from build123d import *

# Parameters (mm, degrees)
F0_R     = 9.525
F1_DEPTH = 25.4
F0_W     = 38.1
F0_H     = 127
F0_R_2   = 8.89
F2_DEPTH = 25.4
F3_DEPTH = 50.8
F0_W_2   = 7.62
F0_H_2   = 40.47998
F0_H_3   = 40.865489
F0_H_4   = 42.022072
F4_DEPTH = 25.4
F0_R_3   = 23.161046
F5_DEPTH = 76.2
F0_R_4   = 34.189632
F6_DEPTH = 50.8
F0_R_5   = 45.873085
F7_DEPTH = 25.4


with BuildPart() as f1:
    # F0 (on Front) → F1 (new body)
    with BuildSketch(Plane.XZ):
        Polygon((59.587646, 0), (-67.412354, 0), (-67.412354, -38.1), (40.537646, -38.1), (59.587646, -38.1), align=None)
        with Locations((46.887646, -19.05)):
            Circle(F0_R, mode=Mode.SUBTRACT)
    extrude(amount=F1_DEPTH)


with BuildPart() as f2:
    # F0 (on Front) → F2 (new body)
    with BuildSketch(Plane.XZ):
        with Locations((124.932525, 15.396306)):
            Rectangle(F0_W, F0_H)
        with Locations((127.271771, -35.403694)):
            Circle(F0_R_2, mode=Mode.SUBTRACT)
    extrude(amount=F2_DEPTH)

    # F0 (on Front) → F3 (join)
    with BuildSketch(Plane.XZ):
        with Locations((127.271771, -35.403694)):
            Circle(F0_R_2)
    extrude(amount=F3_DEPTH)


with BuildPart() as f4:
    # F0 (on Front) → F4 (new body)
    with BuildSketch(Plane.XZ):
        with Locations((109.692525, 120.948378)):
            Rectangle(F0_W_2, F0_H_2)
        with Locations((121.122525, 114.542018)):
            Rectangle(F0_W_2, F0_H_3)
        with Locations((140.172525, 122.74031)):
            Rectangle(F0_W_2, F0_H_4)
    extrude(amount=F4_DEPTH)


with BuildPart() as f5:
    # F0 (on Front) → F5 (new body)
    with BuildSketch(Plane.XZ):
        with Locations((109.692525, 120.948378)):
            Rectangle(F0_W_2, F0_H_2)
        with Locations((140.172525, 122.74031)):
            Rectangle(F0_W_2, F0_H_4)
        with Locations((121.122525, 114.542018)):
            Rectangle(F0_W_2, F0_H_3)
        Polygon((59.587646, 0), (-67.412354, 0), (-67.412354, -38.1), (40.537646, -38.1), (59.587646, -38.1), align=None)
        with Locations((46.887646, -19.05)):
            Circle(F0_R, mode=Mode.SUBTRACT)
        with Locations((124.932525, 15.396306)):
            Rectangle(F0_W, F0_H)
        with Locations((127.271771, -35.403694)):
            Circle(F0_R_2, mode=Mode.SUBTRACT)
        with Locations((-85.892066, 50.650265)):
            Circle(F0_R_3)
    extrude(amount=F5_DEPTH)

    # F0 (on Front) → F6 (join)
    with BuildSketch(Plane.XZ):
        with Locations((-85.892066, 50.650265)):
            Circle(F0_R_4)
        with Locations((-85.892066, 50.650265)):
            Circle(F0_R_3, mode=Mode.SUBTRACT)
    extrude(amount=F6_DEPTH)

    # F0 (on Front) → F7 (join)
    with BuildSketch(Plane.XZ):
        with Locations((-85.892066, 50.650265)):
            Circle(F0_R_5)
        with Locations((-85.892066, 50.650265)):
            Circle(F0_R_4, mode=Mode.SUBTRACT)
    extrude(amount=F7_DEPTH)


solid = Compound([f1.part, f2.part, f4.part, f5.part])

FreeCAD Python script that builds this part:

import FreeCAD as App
import Part
import Sketcher

V = App.Vector
Q = App.Units.Quantity

doc = App.newDocument("Part")
params = doc.addObject("Spreadsheet::Sheet", "Params")
for row, (alias, value) in enumerate([
    ("sketch1_diameter", "0.75 in"),
    ("sketch1_width", "5 in"),
    ("sketch1_height", "1.5 in"),
    ("pad1_length", "1 in"),
    ("sketch2_diameter", "0.7 in"),
    ("sketch2_height", "5 in"),
    ("sketch2_width", "1.5 in"),
    ("pad2_length", "1 in"),
    ("sketch3_diameter", "0.7 in"),
    ("pad3_length", "2 in"),
    ("sketch4_width", "0.3 in"),
    ("pad4_length", "1 in"),
    ("sketch5_diameter", "0.7 in"),
    ("sketch5_diameter2", "0.75 in"),
    ("sketch5_width", "5 in"),
    ("sketch5_width2", "0.3 in"),
    ("sketch5_width3", "1.5 in"),
    ("pad5_length", "3 in"),
    ("pad6_length", "2 in"),
    ("pad7_length", "1 in"),
], start=1):
    params.set(f"A{row}", alias)
    params.set(f"B{row}", "=" + value)
    params.setAlias(f"B{row}", alias)

body = doc.addObject("PartDesign::Body", "Body")

sketch1 = doc.addObject("Sketcher::SketchObject", "Sketch")
body.addObject(sketch1)
sketch1.AttachmentSupport = (doc.XZ_Plane, [""])
sketch1.MapMode = "FlatFace"
sketch1.addGeometry([
    Part.LineSegment(V(60, 0, 0), V(-67, 0, 0)),
    Part.LineSegment(V(-67, 0, 0), V(-67, -38, 0)),
    Part.LineSegment(V(-67, -38, 0), V(60, -38, 0)),
    Part.LineSegment(V(60, -38, 0), V(60, 0, 0)),
    Part.Circle(V(47, -19, 0), V(0, 0, 1), 10),
], False)
sketch1.addConstraint([
    Sketcher.Constraint("Coincident", 0, 2, 1, 1),
    Sketcher.Constraint("Coincident", 1, 2, 2, 1),
    Sketcher.Constraint("Coincident", 2, 2, 3, 1),
    Sketcher.Constraint("Coincident", 3, 2, 0, 1),
    Sketcher.Constraint("Horizontal", 0),
    Sketcher.Constraint("Vertical", 1),
    Sketcher.Constraint("Horizontal", 2),
    Sketcher.Constraint("Vertical", 3),
    Sketcher.Constraint("PointOnObject", 0, 2, -1),
    Sketcher.Constraint("Diameter", 4, Q("0.75 in")),
    Sketcher.Constraint("DistanceX", 0, 2, 0, 1, Q("5 in")),
    Sketcher.Constraint("DistanceY", 1, 2, 1, 1, Q("1.5 in")),
    Sketcher.Constraint("DistanceX", 0, 2, 4, 3, Q("4.5 in")),
    Sketcher.Constraint("DistanceY", 4, 3, -1, 1, Q("0.75 in")),
    Sketcher.Constraint("DistanceX", -1, 1, 4, 3, Q("46.887646 mm")),
])
sketch1.setExpression("Constraints[9]", "Params.sketch1_diameter")
sketch1.setExpression("Constraints[10]", "Params.sketch1_width")
sketch1.setExpression("Constraints[11]", "Params.sketch1_height")
pad1 = doc.addObject("PartDesign::Pad", "Pad")
body.addObject(pad1)
pad1.Profile = sketch1
pad1.setExpression("Length", "Params.pad1_length")
body2 = doc.addObject("PartDesign::Body", "Body001")

sketch2 = doc.addObject("Sketcher::SketchObject", "Sketch001")
body2.addObject(sketch2)
sketch2.AttachmentSupport = (doc.getObject("XZ_Plane001"), [""])
sketch2.MapMode = "FlatFace"
sketch2.addGeometry([
    Part.LineSegment(V(106, 79, 0), V(106, -48, 0)),
    Part.LineSegment(V(106, -48, 0), V(144, -48, 0)),
    Part.LineSegment(V(144, -48, 0), V(144, 79, 0)),
    Part.LineSegment(V(144, 79, 0), V(106, 79, 0)),
    Part.Circle(V(127, -35, 0), V(0, 0, 1), 9),
], False)
sketch2.addConstraint([
    Sketcher.Constraint("Coincident", 0, 2, 1, 1),
    Sketcher.Constraint("Coincident", 1, 2, 2, 1),
    Sketcher.Constraint("Coincident", 2, 2, 3, 1),
    Sketcher.Constraint("Coincident", 3, 2, 0, 1),
    Sketcher.Constraint("Vertical", 0),
    Sketcher.Constraint("Horizontal", 1),
    Sketcher.Constraint("Vertical", 2),
    Sketcher.Constraint("Horizontal", 3),
    Sketcher.Constraint("Diameter", 4, Q("0.7 in")),
    Sketcher.Constraint("DistanceY", 0, 2, 0, 1, Q("5 in")),
    Sketcher.Constraint("DistanceX", 1, 1, 1, 2, Q("1.5 in")),
    Sketcher.Constraint("DistanceY", 0, 2, 4, 3, Q("0.5 in")),
    Sketcher.Constraint("DistanceX", -1, 1, 4, 3, Q("127.271771 mm")),
    Sketcher.Constraint("DistanceY", 4, 3, -1, 1, Q("35.403694 mm")),
    Sketcher.Constraint("DistanceX", -1, 1, 0, 2, Q("105.882525 mm")),
])
sketch2.setExpression("Constraints[8]", "Params.sketch2_diameter")
sketch2.setExpression("Constraints[9]", "Params.sketch2_height")
sketch2.setExpression("Constraints[10]", "Params.sketch2_width")
pad2 = doc.addObject("PartDesign::Pad", "Pad001")
body2.addObject(pad2)
pad2.Profile = sketch2
pad2.setExpression("Length", "Params.pad2_length")

sketch3 = doc.addObject("Sketcher::SketchObject", "Sketch002")
body2.addObject(sketch3)
sketch3.AttachmentSupport = (doc.getObject("XZ_Plane001"), [""])
sketch3.MapMode = "FlatFace"
sketch3.addGeometry(Part.Circle(V(127, -35, 0), V(0, 0, 1), 9), False)
sketch3.addConstraint([
    Sketcher.Constraint("Diameter", 0, Q("0.7 in")),
    Sketcher.Constraint("DistanceX", -1, 1, 0, 3, Q("127.271771 mm")),
    Sketcher.Constraint("DistanceY", 0, 3, -1, 1, Q("35.403694 mm")),
])
sketch3.setExpression("Constraints[0]", "Params.sketch3_diameter")
pad3 = doc.addObject("PartDesign::Pad", "Pad002")
body2.addObject(pad3)
pad3.Profile = sketch3
pad3.setExpression("Length", "Params.pad3_length")
body3 = doc.addObject("PartDesign::Body", "Body002")
body3.AllowCompound = True

sketch4 = doc.addObject("Sketcher::SketchObject", "Sketch003")
body3.addObject(sketch4)
sketch4.AttachmentSupport = (doc.getObject("XZ_Plane002"), [""])
sketch4.MapMode = "FlatFace"
sketch4.addGeometry([
    Part.LineSegment(V(106, 141, 0), V(106, 101, 0)),
    Part.LineSegment(V(106, 101, 0), V(114, 101, 0)),
    Part.LineSegment(V(114, 101, 0), V(114, 141, 0)),
    Part.LineSegment(V(114, 141, 0), V(106, 141, 0)),
    Part.LineSegment(V(117, 135, 0), V(117, 94, 0)),
    Part.LineSegment(V(117, 94, 0), V(125, 94, 0)),
    Part.LineSegment(V(125, 94, 0), V(125, 135, 0)),
    Part.LineSegment(V(125, 135, 0), V(117, 135, 0)),
    Part.LineSegment(V(136, 144, 0), V(136, 102, 0)),
    Part.LineSegment(V(136, 102, 0), V(144, 102, 0)),
    Part.LineSegment(V(144, 102, 0), V(144, 144, 0)),
    Part.LineSegment(V(144, 144, 0), V(136, 144, 0)),
], False)
sketch4.addConstraint([
    Sketcher.Constraint("Coincident", 0, 2, 1, 1),
    Sketcher.Constraint("Coincident", 1, 2, 2, 1),
    Sketcher.Constraint("Coincident", 2, 2, 3, 1),
    Sketcher.Constraint("Coincident", 3, 2, 0, 1),
    Sketcher.Constraint("Coincident", 4, 2, 5, 1),
    Sketcher.Constraint("Coincident", 5, 2, 6, 1),
    Sketcher.Constraint("Coincident", 6, 2, 7, 1),
    Sketcher.Constraint("Coincident", 7, 2, 4, 1),
    Sketcher.Constraint("Coincident", 8, 2, 9, 1),
    Sketcher.Constraint("Coincident", 9, 2, 10, 1),
    Sketcher.Constraint("Coincident", 10, 2, 11, 1),
    Sketcher.Constraint("Coincident", 11, 2, 8, 1),
    Sketcher.Constraint("Vertical", 0),
    Sketcher.Constraint("Horizontal", 1),
    Sketcher.Constraint("Vertical", 2),
    Sketcher.Constraint("Horizontal", 3),
    Sketcher.Constraint("Vertical", 4),
    Sketcher.Constraint("Horizontal", 5),
    Sketcher.Constraint("Vertical", 6),
    Sketcher.Constraint("Horizontal", 7),
    Sketcher.Constraint("Vertical", 8),
    Sketcher.Constraint("Horizontal", 9),
    Sketcher.Constraint("Vertical", 10),
    Sketcher.Constraint("Horizontal", 11),
    Sketcher.Constraint("Equal", 3, 5),
    Sketcher.Constraint("Equal", 7, 9),
    Sketcher.Constraint("DistanceX", 1, 1, 1, 2, Q("0.3 in")),
    Sketcher.Constraint("DistanceY", 5, 2, 8, 2, Q("0.3 in")),
    Sketcher.Constraint("DistanceX", 1, 2, 8, 2, Q("0.9 in")),
    Sketcher.Constraint("DistanceX", 1, 2, 4, 2, Q("0.15 in")),
    Sketcher.Constraint("DistanceY", 0, 2, 0, 1, Q("1.5937 in")),
    Sketcher.Constraint("DistanceY", 4, 2, 4, 1, Q("40.865489 mm")),
    Sketcher.Constraint("DistanceY", 8, 2, 8, 1, Q("42.022072 mm")),
    Sketcher.Constraint("DistanceY", -1, 1, 0, 2, Q("100.708388 mm")),
    Sketcher.Constraint("DistanceY", 2, 2, 10, 2, Q("2.562978 mm")),
    Sketcher.Constraint("DistanceX", -1, 1, 0, 2, Q("105.882525 mm")),
])
sketch4.setExpression("Constraints[26]", "Params.sketch4_width")
pad4 = doc.addObject("PartDesign::Pad", "Pad003")
body3.addObject(pad4)
pad4.Profile = sketch4
pad4.setExpression("Length", "Params.pad4_length")
body4 = doc.addObject("PartDesign::Body", "Body003")
body4.AllowCompound = True

sketch5 = doc.addObject("Sketcher::SketchObject", "Sketch004")
body4.addObject(sketch5)
sketch5.AttachmentSupport = (doc.getObject("XZ_Plane003"), [""])
sketch5.MapMode = "FlatFace"
sketch5.addGeometry([
    Part.LineSegment(V(106, 141, 0), V(106, 101, 0)),
    Part.LineSegment(V(106, 101, 0), V(114, 101, 0)),
    Part.LineSegment(V(114, 101, 0), V(114, 141, 0)),
    Part.LineSegment(V(114, 141, 0), V(106, 141, 0)),
    Part.LineSegment(V(136, 144, 0), V(136, 102, 0)),
    Part.LineSegment(V(136, 102, 0), V(144, 102, 0)),
    Part.LineSegment(V(144, 102, 0), V(144, 144, 0)),
    Part.LineSegment(V(144, 144, 0), V(136, 144, 0)),
    Part.LineSegment(V(117, 135, 0), V(117, 94, 0)),
    Part.LineSegment(V(117, 94, 0), V(125, 94, 0)),
    Part.LineSegment(V(125, 94, 0), V(125, 135, 0)),
    Part.LineSegment(V(125, 135, 0), V(117, 135, 0)),
    Part.LineSegment(V(60, 0, 0), V(-67, 0, 0)),
    Part.LineSegment(V(-67, 0, 0), V(-67, -38, 0)),
    Part.LineSegment(V(-67, -38, 0), V(60, -38, 0)),
    Part.LineSegment(V(60, -38, 0), V(60, 0, 0)),
    Part.Circle(V(47, -19, 0), V(0, 0, 1), 10),
    Part.LineSegment(V(106, 79, 0), V(106, -48, 0)),
    Part.LineSegment(V(106, -48, 0), V(144, -48, 0)),
    Part.LineSegment(V(144, -48, 0), V(144, 79, 0)),
    Part.LineSegment(V(144, 79, 0), V(106, 79, 0)),
    Part.Circle(V(127, -35, 0), V(0, 0, 1), 9),
    Part.Circle(V(-86, 51, 0), V(0, 0, 1), 23),
], False)
sketch5.addConstraint([
    Sketcher.Constraint("Coincident", 0, 2, 1, 1),
    Sketcher.Constraint("Coincident", 1, 2, 2, 1),
    Sketcher.Constraint("Coincident", 2, 2, 3, 1),
    Sketcher.Constraint("Coincident", 3, 2, 0, 1),
    Sketcher.Constraint("Coincident", 4, 2, 5, 1),
    Sketcher.Constraint("Coincident", 5, 2, 6, 1),
    Sketcher.Constraint("Coincident", 6, 2, 7, 1),
    Sketcher.Constraint("Coincident", 7, 2, 4, 1),
    Sketcher.Constraint("Coincident", 8, 2, 9, 1),
    Sketcher.Constraint("Coincident", 9, 2, 10, 1),
    Sketcher.Constraint("Coincident", 10, 2, 11, 1),
    Sketcher.Constraint("Coincident", 11, 2, 8, 1),
    Sketcher.Constraint("Coincident", 12, 2, 13, 1),
    Sketcher.Constraint("Coincident", 13, 2, 14, 1),
    Sketcher.Constraint("Coincident", 14, 2, 15, 1),
    Sketcher.Constraint("Coincident", 15, 2, 12, 1),
    Sketcher.Constraint("Coincident", 17, 2, 18, 1),
    Sketcher.Constraint("Coincident", 18, 2, 19, 1),
    Sketcher.Constraint("Coincident", 19, 2, 20, 1),
    Sketcher.Constraint("Coincident", 20, 2, 17, 1),
    Sketcher.Constraint("Vertical", 0),
    Sketcher.Constraint("Horizontal", 1),
    Sketcher.Constraint("Vertical", 2),
    Sketcher.Constraint("Horizontal", 3),
    Sketcher.Constraint("Vertical", 4),
    Sketcher.Constraint("Horizontal", 5),
    Sketcher.Constraint("Vertical", 6),
    Sketcher.Constraint("Horizontal", 7),
    Sketcher.Constraint("Vertical", 8),
    Sketcher.Constraint("Horizontal", 9),
    Sketcher.Constraint("Vertical", 10),
    Sketcher.Constraint("Horizontal", 11),
    Sketcher.Constraint("Horizontal", 12),
    Sketcher.Constraint("Vertical", 13),
    Sketcher.Constraint("Horizontal", 14),
    Sketcher.Constraint("Vertical", 15),
    Sketcher.Constraint("Vertical", 17),
    Sketcher.Constraint("Horizontal", 18),
    Sketcher.Constraint("Vertical", 19),
    Sketcher.Constraint("Horizontal", 20),
    Sketcher.Constraint("PointOnObject", 12, 2, -1),
    Sketcher.Constraint("Vertical", 3, 2, 17, 2),
    Sketcher.Constraint("Vertical", 6, 2, 18, 2),
    Sketcher.Constraint("Equal", 3, 5),
    Sketcher.Constraint("Equal", 7, 9),
    Sketcher.Constraint("Equal", 20, 13),
    Sketcher.Constraint("Equal", 14, 17),
    Sketcher.Constraint("Diameter", 21, Q("0.7 in")),
    Sketcher.Constraint("Diameter", 16, Q("0.75 in")),
    Sketcher.Constraint("DistanceX", 12, 2, 12, 1, Q("5 in")),
    Sketcher.Constraint("DistanceX", 1, 1, 1, 2, Q("0.3 in")),
    Sketcher.Constraint("DistanceX", 18, 1, 18, 2, Q("1.5 in")),
    Sketcher.Constraint("DistanceY", 8, 2, 4, 2, Q("0.3 in")),
    Sketcher.Constraint("DistanceX", 12, 2, 16, 3, Q("4.5 in")),
    Sketcher.Constraint("DistanceY", 17, 2, 21, 3, Q("0.5 in")),
    Sketcher.Constraint("DistanceY", 16, 3, -1, 1, Q("0.75 in")),
    Sketcher.Constraint("DistanceX", 1, 2, 8, 2, Q("0.15 in")),
    Sketcher.Constraint("Diameter", 22, Q("46.322092 mm")),
    Sketcher.Constraint("DistanceY", 0, 2, 0, 1, Q("1.5937 in")),
    Sketcher.Constraint("DistanceY", 8, 2, 8, 1, Q("40.865489 mm")),
    Sketcher.Constraint("DistanceY", 4, 2, 4, 1, Q("42.022072 mm")),
    Sketcher.Constraint("DistanceX", -1, 1, 21, 3, Q("127.271771 mm")),
    Sketcher.Constraint("DistanceY", -1, 1, 0, 2, Q("100.708388 mm")),
    Sketcher.Constraint("DistanceX", 22, 3, 16, 3, Q("132.779712 mm")),
    Sketcher.Constraint("DistanceY", 21, 3, 22, 3, Q("86.053959 mm")),
    Sketcher.Constraint("DistanceX", 16, 3, 0, 2, Q("58.994879 mm")),
    Sketcher.Constraint("DistanceY", 21, 3, 0, 2, Q("136.112082 mm")),
    Sketcher.Constraint("DistanceY", 21, 3, 4, 2, Q("137.132968 mm")),
    Sketcher.Constraint("DistanceX", -1, 1, 16, 3, Q("46.887646 mm")),
])
sketch5.setExpression("Constraints[47]", "Params.sketch5_diameter")
sketch5.setExpression("Constraints[48]", "Params.sketch5_diameter2")
sketch5.setExpression("Constraints[49]", "Params.sketch5_width")
sketch5.setExpression("Constraints[50]", "Params.sketch5_width2")
sketch5.setExpression("Constraints[51]", "Params.sketch5_width3")
pad5 = doc.addObject("PartDesign::Pad", "Pad004")
body4.addObject(pad5)
pad5.Profile = sketch5
pad5.setExpression("Length", "Params.pad5_length")

sketch6 = doc.addObject("Sketcher::SketchObject", "Sketch005")
body4.addObject(sketch6)
sketch6.AttachmentSupport = (doc.getObject("XZ_Plane003"), [""])
sketch6.MapMode = "FlatFace"
sketch6.addGeometry([
    Part.Circle(V(-86, 51, 0), V(0, 0, 1), 34),
    Part.Circle(V(-86, 51, 0), V(0, 0, 1), 23),
], False)
sketch6.addConstraint([
    Sketcher.Constraint("Coincident", 1, 3, 0, 3),
    Sketcher.Constraint("Diameter", 1, Q("46.322092 mm")),
    Sketcher.Constraint("Diameter", 0, Q("68.379264 mm")),
    Sketcher.Constraint("DistanceX", 0, 3, -1, 1, Q("85.892066 mm")),
    Sketcher.Constraint("DistanceY", -1, 1, 0, 3, Q("50.650265 mm")),
])
pad6 = doc.addObject("PartDesign::Pad", "Pad005")
body4.addObject(pad6)
pad6.Profile = sketch6
pad6.setExpression("Length", "Params.pad6_length")

sketch7 = doc.addObject("Sketcher::SketchObject", "Sketch006")
body4.addObject(sketch7)
sketch7.AttachmentSupport = (doc.getObject("XZ_Plane003"), [""])
sketch7.MapMode = "FlatFace"
sketch7.addGeometry([
    Part.Circle(V(-86, 51, 0), V(0, 0, 1), 46),
    Part.Circle(V(-86, 51, 0), V(0, 0, 1), 34),
], False)
sketch7.addConstraint([
    Sketcher.Constraint("Coincident", 1, 3, 0, 3),
    Sketcher.Constraint("Diameter", 0, Q("91.74617 mm")),
    Sketcher.Constraint("Diameter", 1, Q("68.379264 mm")),
    Sketcher.Constraint("DistanceX", 0, 3, -1, 1, Q("85.892066 mm")),
    Sketcher.Constraint("DistanceY", -1, 1, 0, 3, Q("50.650265 mm")),
])
pad7 = doc.addObject("PartDesign::Pad", "Pad006")
body4.addObject(pad7)
pad7.Profile = sketch7
pad7.setExpression("Length", "Params.pad7_length")

doc.recompute()
